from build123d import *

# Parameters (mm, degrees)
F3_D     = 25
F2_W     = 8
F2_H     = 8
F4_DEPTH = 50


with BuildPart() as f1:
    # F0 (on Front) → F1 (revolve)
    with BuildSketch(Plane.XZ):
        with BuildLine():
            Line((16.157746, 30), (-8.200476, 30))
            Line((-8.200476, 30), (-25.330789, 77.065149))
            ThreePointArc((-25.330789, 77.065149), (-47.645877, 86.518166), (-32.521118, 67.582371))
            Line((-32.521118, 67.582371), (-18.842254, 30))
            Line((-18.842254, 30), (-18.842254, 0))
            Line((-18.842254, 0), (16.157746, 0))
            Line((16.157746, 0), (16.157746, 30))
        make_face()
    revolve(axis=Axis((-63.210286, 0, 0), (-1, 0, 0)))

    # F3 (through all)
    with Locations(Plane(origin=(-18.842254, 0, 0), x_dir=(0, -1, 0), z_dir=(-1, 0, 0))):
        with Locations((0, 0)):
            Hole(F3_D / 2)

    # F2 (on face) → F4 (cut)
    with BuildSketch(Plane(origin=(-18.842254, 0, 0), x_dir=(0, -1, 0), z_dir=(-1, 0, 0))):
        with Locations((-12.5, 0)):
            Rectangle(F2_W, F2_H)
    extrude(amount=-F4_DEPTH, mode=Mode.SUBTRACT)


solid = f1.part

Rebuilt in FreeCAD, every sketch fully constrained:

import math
import FreeCAD as App
import Part
import Sketcher

V = App.Vector
Q = App.Units.Quantity

doc = App.newDocument("Part")
params = doc.addObject("Spreadsheet::Sheet", "Params")
for row, (alias, value) in enumerate([
    ("sketch1_radius", "12.5 mm"),
    ("sketch1_width", "35 mm"),
    ("sketch1_height", "30 mm"),
    ("revolution_angle", "360 deg"),
    ("sketch2_diameter", "25 mm"),
    ("hole_diameter", "25 mm"),
    ("sketch3_width", "8 mm"),
    ("pocket1_length", "50 mm"),
], start=1):
    params.set(f"A{row}", alias)
    params.set(f"B{row}", "=" + value)
    params.setAlias(f"B{row}", alias)

body = doc.addObject("PartDesign::Body", "Body")

# Sketch on XZ plane
sketch1 = body.newObject("Sketcher::SketchObject", "Sketch")
sketch1.AttachmentSupport = (doc.getObject("XZ_Plane"), [""])
sketch1.MapMode = "FlatFace"
sketch1.addGeometry([
    Part.LineSegment(V(16.157746, 30, 0), V(-8.200476, 30, 0)),  # 0
    Part.LineSegment(V(-8.200476, 30, 0), V(-25.330789, 77.065149, 0)),  # 1
    Part.ArcOfCircle(Part.Circle(V(-37.685465, 78.965671, 0), V(0, 0, 1), 12.5), math.radians(-8.745268), math.radians(294.402725)),  # 2
    Part.LineSegment(V(-32.521118, 67.582371, 0), V(-18.842254, 30, 0)),  # 3
    Part.LineSegment(V(-18.842254, 30, 0), V(-18.842254, 0, 0)),  # 4
    Part.LineSegment(V(-18.842254, 0, 0), V(16.157746, 0, 0)),  # 5
    Part.LineSegment(V(16.157746, 0, 0), V(16.157746, 30, 0)),  # 6
], False)
sketch1.addConstraint([
    Sketcher.Constraint("Coincident", 0, 2, 1, 1),
    Sketcher.Constraint("Coincident", 1, 2, 2, 1),
    Sketcher.Constraint("Coincident", 2, 2, 3, 1),
    Sketcher.Constraint("Coincident", 3, 2, 4, 1),
    Sketcher.Constraint("Coincident", 4, 2, 5, 1),
    Sketcher.Constraint("Coincident", 5, 2, 6, 1),
    Sketcher.Constraint("Coincident", 6, 2, 0, 1),
    Sketcher.Constraint("Horizontal", 0),
    Sketcher.Constraint("Vertical", 4),
    Sketcher.Constraint("Horizontal", 5),
    Sketcher.Constraint("Vertical", 6),
    Sketcher.Constraint("PointOnObject", 4, 2, -1),
    Sketcher.Constraint("Parallel", 1, 3),
    Sketcher.Constraint("Horizontal", 0, 2, 3, 2),
    Sketcher.Constraint("Radius", 2, Q("12.5 mm")),
    Sketcher.Constraint("DistanceX", 5, 1, 5, 2, Q("35 mm")),
    Sketcher.Constraint("DistanceY", 4, 2, 4, 1, Q("30 mm")),
    Sketcher.Constraint("Angle", 1, Q("110 deg")),
    Sketcher.Constraint("DistanceX", 0, 2, 0, 1, Q("24.358222 mm")),
    Sketcher.Constraint("DistanceY", 2, 2, 2, 3, Q("11.3833 mm")),
    Sketcher.Constraint("DistanceY", -1, 1, 2, 3, Q("78.965671 mm")),
    Sketcher.Constraint("DistanceX", 1, 2, -1, 1, Q("25.330789 mm")),
])
sketch1.setExpression("Constraints[14]", "Params.sketch1_radius")
sketch1.setExpression("Constraints[15]", "Params.sketch1_width")
sketch1.setExpression("Constraints[16]", "Params.sketch1_height")
revolution = body.newObject("PartDesign::Revolution", "Revolution")
revolution.Profile = sketch1
revolution.ReferenceAxis = (sketch1, ["H_Axis"])
revolution.setExpression("Angle", "Params.revolution_angle")

# Sketch on YZ plane
sketch2 = body.newObject("Sketcher::SketchObject", "Sketch001")
sketch2.AttachmentSupport = (doc.getObject("YZ_Plane"), [""])
sketch2.MapMode = "FlatFace"
sketch2.AttachmentOffset = App.Placement(V(0, 0, -18.842254), App.Rotation())
sketch2.addGeometry(Part.Circle(V(0, 0, 0), V(0, 0, 1), 12.5), False)
sketch2.addConstraint([
    Sketcher.Constraint("Coincident", 0, 3, -1, 1),
    Sketcher.Constraint("Diameter", 0, Q("25 mm")),
])
sketch2.setExpression("Constraints[1]", "Params.sketch2_diameter")
doc.recompute()
hole = body.newObject("PartDesign::Hole", "Hole")
hole.Profile = sketch2
hole.ThreadType = "None"
hole.setExpression("Diameter", "Params.hole_diameter")
hole.DepthType = "ThroughAll"
hole.Reversed = True

# Sketch on YZ plane
sketch3 = body.newObject("Sketcher::SketchObject", "Sketch002")
sketch3.AttachmentSupport = (doc.getObject("YZ_Plane"), [""])
sketch3.MapMode = "FlatFace"
sketch3.AttachmentOffset = App.Placement(V(0, 0, -18.842254), App.Rotation())
sketch3.addGeometry([
    Part.LineSegment(V(16.5, 4, 0), V(16.5, -4, 0)),
    Part.LineSegment(V(16.5, -4, 0), V(8.5, -4, 0)),
    Part.LineSegment(V(8.5, -4, 0), V(8.5, 4, 0)),
    Part.LineSegment(V(8.5, 4, 0), V(16.5, 4, 0)),
], False)
sketch3.addConstraint([
    Sketcher.Constraint("Coincident", 0, 2, 1, 1),
    Sketcher.Constraint("Coincident", 1, 2, 2, 1),
    Sketcher.Constraint("Coincident", 2, 2, 3, 1),
    Sketcher.Constraint("Coincident", 3, 2, 0, 1),
    Sketcher.Constraint("Vertical", 0),
    Sketcher.Constraint("Horizontal", 1),
    Sketcher.Constraint("Vertical", 2),
    Sketcher.Constraint("Horizontal", 3),
    Sketcher.Constraint("Equal", 3, 0),
    Sketcher.Constraint("DistanceX", 1, 2, 1, 1, Q("8 mm")),
    Sketcher.Constraint("DistanceY", 0, 2, -1, 1, Q("4 mm")),
    Sketcher.Constraint("DistanceX", -1, 1, 0, 2, Q("16.5 mm")),
])
sketch3.setExpression("Constraints[9]", "Params.sketch3_width")
pocket1 = body.newObject("PartDesign::Pocket", "Pocket")
pocket1.Profile = sketch3
pocket1.setExpression("Length", "Params.pocket1_length")
pocket1.Reversed = True

doc.recompute()
